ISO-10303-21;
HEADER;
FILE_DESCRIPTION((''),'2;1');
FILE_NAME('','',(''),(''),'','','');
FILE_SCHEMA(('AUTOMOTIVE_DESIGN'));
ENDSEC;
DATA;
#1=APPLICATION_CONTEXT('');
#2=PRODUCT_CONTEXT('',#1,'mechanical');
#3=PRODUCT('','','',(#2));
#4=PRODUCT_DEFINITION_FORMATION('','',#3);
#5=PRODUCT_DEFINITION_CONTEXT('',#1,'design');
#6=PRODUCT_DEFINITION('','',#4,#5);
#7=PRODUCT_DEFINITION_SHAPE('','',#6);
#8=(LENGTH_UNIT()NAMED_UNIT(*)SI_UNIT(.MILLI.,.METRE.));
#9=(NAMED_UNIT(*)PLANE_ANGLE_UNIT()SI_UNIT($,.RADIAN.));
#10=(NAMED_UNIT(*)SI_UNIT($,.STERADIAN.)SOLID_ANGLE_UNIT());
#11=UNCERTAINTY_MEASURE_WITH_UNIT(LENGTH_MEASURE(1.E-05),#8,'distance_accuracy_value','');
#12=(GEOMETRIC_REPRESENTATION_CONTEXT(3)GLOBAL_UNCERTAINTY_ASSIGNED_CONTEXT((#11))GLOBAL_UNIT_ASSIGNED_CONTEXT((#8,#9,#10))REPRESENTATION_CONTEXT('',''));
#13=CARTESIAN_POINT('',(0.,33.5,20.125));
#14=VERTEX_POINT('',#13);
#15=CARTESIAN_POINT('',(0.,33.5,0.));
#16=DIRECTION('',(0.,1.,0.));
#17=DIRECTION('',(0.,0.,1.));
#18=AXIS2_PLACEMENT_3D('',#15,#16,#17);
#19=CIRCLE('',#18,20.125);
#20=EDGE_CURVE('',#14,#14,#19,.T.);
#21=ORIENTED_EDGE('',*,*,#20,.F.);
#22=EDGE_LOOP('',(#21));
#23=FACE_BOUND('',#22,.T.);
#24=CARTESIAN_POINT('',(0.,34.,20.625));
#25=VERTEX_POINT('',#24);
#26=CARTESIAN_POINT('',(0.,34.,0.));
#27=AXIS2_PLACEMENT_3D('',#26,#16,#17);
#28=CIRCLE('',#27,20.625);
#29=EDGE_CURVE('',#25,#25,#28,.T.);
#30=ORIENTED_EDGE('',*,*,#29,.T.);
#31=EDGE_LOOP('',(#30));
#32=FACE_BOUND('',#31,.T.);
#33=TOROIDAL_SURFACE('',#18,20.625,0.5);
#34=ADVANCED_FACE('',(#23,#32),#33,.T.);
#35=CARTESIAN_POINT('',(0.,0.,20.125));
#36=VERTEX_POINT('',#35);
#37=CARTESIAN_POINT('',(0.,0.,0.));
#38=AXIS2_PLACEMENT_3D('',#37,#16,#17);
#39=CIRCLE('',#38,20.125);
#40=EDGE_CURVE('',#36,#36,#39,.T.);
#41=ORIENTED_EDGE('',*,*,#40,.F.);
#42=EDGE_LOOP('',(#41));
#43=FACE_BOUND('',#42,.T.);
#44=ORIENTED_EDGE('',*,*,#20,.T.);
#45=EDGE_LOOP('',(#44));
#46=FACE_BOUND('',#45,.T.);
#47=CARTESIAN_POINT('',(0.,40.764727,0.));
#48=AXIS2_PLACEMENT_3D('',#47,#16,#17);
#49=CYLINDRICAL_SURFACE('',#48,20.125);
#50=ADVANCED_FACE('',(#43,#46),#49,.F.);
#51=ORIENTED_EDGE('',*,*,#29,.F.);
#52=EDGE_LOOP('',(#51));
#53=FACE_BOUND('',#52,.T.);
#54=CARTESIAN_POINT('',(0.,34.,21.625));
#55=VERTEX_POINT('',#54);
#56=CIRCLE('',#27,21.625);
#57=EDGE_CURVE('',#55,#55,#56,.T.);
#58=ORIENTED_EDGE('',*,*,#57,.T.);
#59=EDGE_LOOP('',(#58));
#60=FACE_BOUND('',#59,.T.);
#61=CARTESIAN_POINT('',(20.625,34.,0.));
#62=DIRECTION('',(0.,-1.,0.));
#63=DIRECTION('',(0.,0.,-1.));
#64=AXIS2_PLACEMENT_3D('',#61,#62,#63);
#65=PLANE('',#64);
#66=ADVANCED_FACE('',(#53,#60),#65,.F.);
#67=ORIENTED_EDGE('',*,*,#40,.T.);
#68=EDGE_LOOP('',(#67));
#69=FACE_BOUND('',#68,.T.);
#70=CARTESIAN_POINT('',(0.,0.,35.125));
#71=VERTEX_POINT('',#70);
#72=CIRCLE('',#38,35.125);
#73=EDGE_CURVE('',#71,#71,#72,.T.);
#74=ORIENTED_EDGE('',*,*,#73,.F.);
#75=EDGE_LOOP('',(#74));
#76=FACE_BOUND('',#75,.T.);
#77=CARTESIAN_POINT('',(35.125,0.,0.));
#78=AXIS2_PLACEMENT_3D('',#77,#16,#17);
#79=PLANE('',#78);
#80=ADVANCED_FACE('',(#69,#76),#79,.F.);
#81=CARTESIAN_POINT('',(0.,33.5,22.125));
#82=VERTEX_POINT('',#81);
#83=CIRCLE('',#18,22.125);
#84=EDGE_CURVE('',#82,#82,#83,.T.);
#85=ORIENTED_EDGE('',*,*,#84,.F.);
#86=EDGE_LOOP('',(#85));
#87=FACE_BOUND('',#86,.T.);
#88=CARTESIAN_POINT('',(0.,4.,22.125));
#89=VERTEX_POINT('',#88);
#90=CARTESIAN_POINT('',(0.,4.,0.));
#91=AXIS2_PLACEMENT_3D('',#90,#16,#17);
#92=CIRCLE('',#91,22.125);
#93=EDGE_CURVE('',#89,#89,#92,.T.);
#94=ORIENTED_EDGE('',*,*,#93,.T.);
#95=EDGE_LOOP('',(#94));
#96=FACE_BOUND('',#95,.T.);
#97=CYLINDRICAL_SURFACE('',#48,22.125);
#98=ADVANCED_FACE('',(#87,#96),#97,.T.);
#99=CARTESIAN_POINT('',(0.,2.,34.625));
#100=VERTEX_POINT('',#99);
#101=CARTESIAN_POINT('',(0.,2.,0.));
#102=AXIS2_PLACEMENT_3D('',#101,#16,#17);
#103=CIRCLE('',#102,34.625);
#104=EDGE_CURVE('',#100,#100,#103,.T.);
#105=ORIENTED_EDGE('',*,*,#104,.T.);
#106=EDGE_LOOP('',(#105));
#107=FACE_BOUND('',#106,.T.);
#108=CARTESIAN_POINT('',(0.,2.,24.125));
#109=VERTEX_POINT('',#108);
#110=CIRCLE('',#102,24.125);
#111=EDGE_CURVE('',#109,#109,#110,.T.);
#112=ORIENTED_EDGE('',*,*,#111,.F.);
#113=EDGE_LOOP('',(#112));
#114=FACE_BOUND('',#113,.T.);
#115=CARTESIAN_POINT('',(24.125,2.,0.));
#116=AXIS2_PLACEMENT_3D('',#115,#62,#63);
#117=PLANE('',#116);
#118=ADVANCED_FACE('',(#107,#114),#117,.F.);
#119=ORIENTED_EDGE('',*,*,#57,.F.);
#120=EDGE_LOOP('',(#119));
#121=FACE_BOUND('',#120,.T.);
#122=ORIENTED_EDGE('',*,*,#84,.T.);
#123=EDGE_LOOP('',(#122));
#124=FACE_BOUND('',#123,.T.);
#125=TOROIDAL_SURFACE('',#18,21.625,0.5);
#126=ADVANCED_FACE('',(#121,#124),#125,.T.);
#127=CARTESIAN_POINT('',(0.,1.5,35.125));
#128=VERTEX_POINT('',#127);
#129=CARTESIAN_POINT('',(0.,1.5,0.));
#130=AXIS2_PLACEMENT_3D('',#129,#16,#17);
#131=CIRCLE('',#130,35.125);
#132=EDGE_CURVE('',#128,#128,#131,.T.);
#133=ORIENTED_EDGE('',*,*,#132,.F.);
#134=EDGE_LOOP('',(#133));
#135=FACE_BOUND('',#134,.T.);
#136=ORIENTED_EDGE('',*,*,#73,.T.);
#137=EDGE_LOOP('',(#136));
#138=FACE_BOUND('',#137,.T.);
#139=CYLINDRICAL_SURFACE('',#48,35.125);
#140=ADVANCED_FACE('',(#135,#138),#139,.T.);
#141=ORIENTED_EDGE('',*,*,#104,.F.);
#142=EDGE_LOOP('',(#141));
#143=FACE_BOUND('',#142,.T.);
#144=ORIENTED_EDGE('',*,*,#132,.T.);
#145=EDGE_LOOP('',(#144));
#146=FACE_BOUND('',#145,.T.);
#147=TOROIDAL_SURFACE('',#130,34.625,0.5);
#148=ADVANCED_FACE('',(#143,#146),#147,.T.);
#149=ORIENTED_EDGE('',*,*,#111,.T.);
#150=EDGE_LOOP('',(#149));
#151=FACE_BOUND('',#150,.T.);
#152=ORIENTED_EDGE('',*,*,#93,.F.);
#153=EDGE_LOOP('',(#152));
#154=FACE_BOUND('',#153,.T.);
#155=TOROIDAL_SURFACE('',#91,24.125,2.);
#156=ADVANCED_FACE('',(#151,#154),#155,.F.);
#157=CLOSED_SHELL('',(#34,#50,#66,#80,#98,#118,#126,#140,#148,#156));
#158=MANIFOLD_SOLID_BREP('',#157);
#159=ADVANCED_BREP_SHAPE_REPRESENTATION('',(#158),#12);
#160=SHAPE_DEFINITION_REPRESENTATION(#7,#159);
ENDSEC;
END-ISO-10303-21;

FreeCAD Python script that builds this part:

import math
import FreeCAD as App
import Part
import Sketcher

doc = App.newDocument("Part")
body = doc.addObject("PartDesign::Body", "Body")

# Sketch on XY plane
sketch1 = body.newObject("Sketcher::SketchObject", "Sketch")
sketch1.AttachmentSupport = (doc.getObject("XY_Plane"), [""])
sketch1.MapMode = "FlatFace"
sketch1.addGeometry(Part.LineSegment(App.Vector(22.12, 4, 0), App.Vector(22.12, 33.5, 0)), False)
sketch1.addGeometry(Part.ArcOfCircle(Part.Circle(App.Vector(21.63, 33.5, 0), App.Vector(0, 0, 1), 0.5), math.radians(0), math.radians(90)), False)
sketch1.addGeometry(Part.LineSegment(App.Vector(21.62, 34, 0), App.Vector(20.62, 34, 0)), False)
sketch1.addGeometry(Part.ArcOfCircle(Part.Circle(App.Vector(20.62, 33.5, 0), App.Vector(0, 0, 1), 0.5), math.radians(90), math.radians(180)), False)
sketch1.addGeometry(Part.LineSegment(App.Vector(20.12, 33.5, 0), App.Vector(20.12, 0, 0)), False)
sketch1.addGeometry(Part.LineSegment(App.Vector(20.12, 0, 0), App.Vector(35.12, 0, 0)), False)
sketch1.addGeometry(Part.LineSegment(App.Vector(35.12, 0, 0), App.Vector(35.12, 1.5, 0)), False)
sketch1.addGeometry(Part.ArcOfCircle(Part.Circle(App.Vector(34.63, 1.5, 0), App.Vector(0, 0, 1), 0.5), math.radians(0), math.radians(90)), False)
sketch1.addGeometry(Part.LineSegment(App.Vector(34.62, 2, 0), App.Vector(24.12, 2, 0)), False)
sketch1.addGeometry(Part.ArcOfCircle(Part.Circle(App.Vector(24.13, 4, 0), App.Vector(0, 0, 1), 2), math.radians(-180), math.radians(-90)), False)
sketch1.addConstraint(Sketcher.Constraint("Tangent", 0, 2, 1, 1))
sketch1.addConstraint(Sketcher.Constraint("Tangent", 1, 2, 2, 1))
sketch1.addConstraint(Sketcher.Constraint("Tangent", 2, 2, 3, 1))
sketch1.addConstraint(Sketcher.Constraint("Tangent", 3, 2, 4, 1))
sketch1.addConstraint(Sketcher.Constraint("Coincident", 4, 2, 5, 1))
sketch1.addConstraint(Sketcher.Constraint("Coincident", 5, 2, 6, 1))
sketch1.addConstraint(Sketcher.Constraint("Tangent", 6, 2, 7, 1))
sketch1.addConstraint(Sketcher.Constraint("Tangent", 7, 2, 8, 1))
sketch1.addConstraint(Sketcher.Constraint("Tangent", 8, 2, 9, 2))
sketch1.addConstraint(Sketcher.Constraint("Tangent", 9, 1, 0, 1))
sketch1.addConstraint(Sketcher.Constraint("Vertical", 0))
sketch1.addConstraint(Sketcher.Constraint("Horizontal", 2))
sketch1.addConstraint(Sketcher.Constraint("Vertical", 4))
sketch1.addConstraint(Sketcher.Constraint("Horizontal", 5))
sketch1.addConstraint(Sketcher.Constraint("Vertical", 6))
sketch1.addConstraint(Sketcher.Constraint("Horizontal", 8))
sketch1.addConstraint(Sketcher.Constraint("Equal", 1, 3))
sketch1.addConstraint(Sketcher.Constraint("Equal", 3, 7))
sketch1.addConstraint(Sketcher.Constraint("PointOnObject", 4, 2, -1))
sketch1.addConstraint(Sketcher.Constraint("Radius", 9, 2.0))
sketch1.addConstraint(Sketcher.Constraint("Radius", 1, 0.5))
sketch1.addConstraint(Sketcher.Constraint("DistanceX", 2, 2, 2, 1, 1.0))
sketch1.addConstraint(Sketcher.Constraint("DistanceX", 5, 1, 5, 2, 15.0))
sketch1.addConstraint(Sketcher.Constraint("DistanceY", 0, 1, 0, 2, 29.5))
sketch1.addConstraint(Sketcher.Constraint("DistanceY", 4, 2, 4, 1, 33.5))
sketch1.addConstraint(Sketcher.Constraint("DistanceX", -1, 1, 1, 3, 21.625))
revolution = body.newObject("PartDesign::Revolution", "Revolution")
revolution.Profile = sketch1
revolution.ReferenceAxis = (sketch1, ["V_Axis"])
revolution.Angle = 360

doc.recompute()
